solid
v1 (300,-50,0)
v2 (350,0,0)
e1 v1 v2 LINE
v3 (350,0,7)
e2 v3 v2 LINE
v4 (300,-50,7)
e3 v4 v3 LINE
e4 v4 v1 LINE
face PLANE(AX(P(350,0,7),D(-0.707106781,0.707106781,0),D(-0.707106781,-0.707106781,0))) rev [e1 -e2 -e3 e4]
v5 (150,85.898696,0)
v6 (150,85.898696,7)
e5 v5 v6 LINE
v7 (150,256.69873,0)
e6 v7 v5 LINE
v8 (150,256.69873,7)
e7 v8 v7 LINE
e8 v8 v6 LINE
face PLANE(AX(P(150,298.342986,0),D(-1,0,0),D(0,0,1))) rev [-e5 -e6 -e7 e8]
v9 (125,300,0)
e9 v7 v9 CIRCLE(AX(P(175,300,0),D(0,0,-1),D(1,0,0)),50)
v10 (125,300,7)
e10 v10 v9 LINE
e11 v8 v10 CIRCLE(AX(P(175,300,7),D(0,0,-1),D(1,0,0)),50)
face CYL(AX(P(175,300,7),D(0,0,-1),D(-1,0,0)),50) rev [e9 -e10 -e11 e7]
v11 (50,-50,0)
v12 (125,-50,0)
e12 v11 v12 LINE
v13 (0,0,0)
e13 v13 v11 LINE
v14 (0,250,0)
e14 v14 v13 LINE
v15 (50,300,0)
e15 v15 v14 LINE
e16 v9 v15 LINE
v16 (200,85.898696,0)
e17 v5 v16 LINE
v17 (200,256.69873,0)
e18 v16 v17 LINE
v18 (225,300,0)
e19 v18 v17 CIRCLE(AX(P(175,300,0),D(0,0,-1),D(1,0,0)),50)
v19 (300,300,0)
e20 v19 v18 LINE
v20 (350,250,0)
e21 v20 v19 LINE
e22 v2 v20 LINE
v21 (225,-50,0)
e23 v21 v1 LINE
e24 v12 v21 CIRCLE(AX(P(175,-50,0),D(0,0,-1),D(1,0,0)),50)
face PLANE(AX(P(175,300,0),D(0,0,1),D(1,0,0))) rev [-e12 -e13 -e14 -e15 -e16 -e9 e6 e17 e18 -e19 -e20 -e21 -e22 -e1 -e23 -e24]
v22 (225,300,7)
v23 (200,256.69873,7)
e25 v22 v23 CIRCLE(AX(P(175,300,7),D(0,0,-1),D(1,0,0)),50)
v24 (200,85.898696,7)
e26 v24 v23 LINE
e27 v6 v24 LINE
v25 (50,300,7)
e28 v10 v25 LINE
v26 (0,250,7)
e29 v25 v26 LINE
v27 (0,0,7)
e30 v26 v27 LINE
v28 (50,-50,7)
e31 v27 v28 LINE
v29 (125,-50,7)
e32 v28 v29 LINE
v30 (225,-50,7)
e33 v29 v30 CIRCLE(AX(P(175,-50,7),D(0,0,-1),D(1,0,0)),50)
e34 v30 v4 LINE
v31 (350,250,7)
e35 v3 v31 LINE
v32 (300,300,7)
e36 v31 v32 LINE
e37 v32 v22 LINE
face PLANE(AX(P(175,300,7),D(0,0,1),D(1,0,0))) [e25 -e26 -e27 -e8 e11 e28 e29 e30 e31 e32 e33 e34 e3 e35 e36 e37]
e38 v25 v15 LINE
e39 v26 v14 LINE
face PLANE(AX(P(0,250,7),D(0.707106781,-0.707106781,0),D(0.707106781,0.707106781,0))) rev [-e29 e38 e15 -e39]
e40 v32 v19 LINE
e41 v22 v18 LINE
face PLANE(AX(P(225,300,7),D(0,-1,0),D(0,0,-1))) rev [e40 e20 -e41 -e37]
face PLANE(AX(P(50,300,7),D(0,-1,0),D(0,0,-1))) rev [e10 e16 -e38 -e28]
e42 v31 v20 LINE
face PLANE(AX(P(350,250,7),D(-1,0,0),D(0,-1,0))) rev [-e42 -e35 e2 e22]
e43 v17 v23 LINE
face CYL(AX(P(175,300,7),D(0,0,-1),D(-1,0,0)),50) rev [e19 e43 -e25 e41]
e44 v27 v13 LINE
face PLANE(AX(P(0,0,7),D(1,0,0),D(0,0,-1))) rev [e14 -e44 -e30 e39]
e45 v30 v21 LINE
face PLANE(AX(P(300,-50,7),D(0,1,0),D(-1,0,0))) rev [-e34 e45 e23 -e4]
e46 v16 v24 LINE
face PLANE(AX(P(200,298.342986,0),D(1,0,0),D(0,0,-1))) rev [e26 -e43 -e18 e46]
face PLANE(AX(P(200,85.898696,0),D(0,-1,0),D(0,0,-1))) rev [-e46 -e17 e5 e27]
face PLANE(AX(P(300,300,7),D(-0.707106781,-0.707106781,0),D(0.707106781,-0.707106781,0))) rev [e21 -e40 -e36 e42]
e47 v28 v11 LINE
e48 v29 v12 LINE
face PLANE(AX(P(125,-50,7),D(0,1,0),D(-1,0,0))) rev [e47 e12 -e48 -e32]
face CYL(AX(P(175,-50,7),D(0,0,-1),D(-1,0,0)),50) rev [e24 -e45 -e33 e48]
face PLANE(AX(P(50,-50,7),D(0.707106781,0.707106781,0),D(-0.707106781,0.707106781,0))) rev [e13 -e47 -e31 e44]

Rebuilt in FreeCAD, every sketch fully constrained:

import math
import FreeCAD as App
import Part
import Sketcher
Q = App.Units.Quantity


def add_polygon(sketch, points):
    """Adds a closed chain of lines whose ends are joined by coincident constraints."""
    first, n = sketch.GeometryCount, len(points)
    for a, b in zip(points, points[1:] + points[:1]):
        sketch.addGeometry(Part.LineSegment(App.Vector(*a, 0), App.Vector(*b, 0)), False)
    for i in range(n):
        sketch.addConstraint(Sketcher.Constraint("Coincident", first + i, 2, first + (i + 1) % n, 1))

doc = App.newDocument("Part")
body = doc.addObject("PartDesign::Body", "Body")

sketch1 = body.newObject("Sketcher::SketchObject", "Sketch")
sketch1.AttachmentSupport = (doc.getObject("XY_Plane"), [""])
sketch1.MapMode = "FlatFace"
sketch1.addGeometry([
    Part.LineSegment(App.Vector(0, 250, 0), App.Vector(0, 0, 0)),
    Part.LineSegment(App.Vector(0, 0, 0), App.Vector(50, -50, 0)),
    Part.LineSegment(App.Vector(50, -50, 0), App.Vector(125, -50, 0)),
    Part.ArcOfCircle(Part.Circle(App.Vector(175, -50, 0), App.Vector(0, 0, 1), 50), math.radians(0), math.radians(180)),
    Part.LineSegment(App.Vector(225, -50, 0), App.Vector(300, -50, 0)),
    Part.LineSegment(App.Vector(300, -50, 0), App.Vector(350, 0, 0)),
    Part.LineSegment(App.Vector(350, 0, 0), App.Vector(350, 250, 0)),
    Part.LineSegment(App.Vector(350, 250, 0), App.Vector(300, 300, 0)),
    Part.LineSegment(App.Vector(300, 300, 0), App.Vector(225, 300, 0)),
    Part.ArcOfCircle(Part.Circle(App.Vector(175, 300, 0), App.Vector(0, 0, 1), 50), math.radians(180), math.radians(360)),
    Part.LineSegment(App.Vector(125, 300, 0), App.Vector(50, 300, 0)),
    Part.LineSegment(App.Vector(50, 300, 0), App.Vector(0, 250, 0)),
], False)
sketch1.addConstraint([
    Sketcher.Constraint("Coincident", 0, 2, 1, 1),
    Sketcher.Constraint("Coincident", 1, 2, 2, 1),
    Sketcher.Constraint("Coincident", 2, 2, 3, 2),
    Sketcher.Constraint("Coincident", 3, 1, 4, 1),
    Sketcher.Constraint("Coincident", 4, 2, 5, 1),
    Sketcher.Constraint("Coincident", 5, 2, 6, 1),
    Sketcher.Constraint("Coincident", 6, 2, 7, 1),
    Sketcher.Constraint("Coincident", 7, 2, 8, 1),
    Sketcher.Constraint("Coincident", 8, 2, 9, 2),
    Sketcher.Constraint("Coincident", 9, 1, 10, 1),
    Sketcher.Constraint("Coincident", 10, 2, 11, 1),
    Sketcher.Constraint("Coincident", 11, 2, 0, 1),
    Sketcher.Constraint("Vertical", 0),
    Sketcher.Constraint("Horizontal", 2),
    Sketcher.Constraint("Horizontal", 4),
    Sketcher.Constraint("Vertical", 6),
    Sketcher.Constraint("Horizontal", 8),
    Sketcher.Constraint("Horizontal", 10),
    Sketcher.Constraint("Coincident", 0, 2, -1, 1),
    Sketcher.Constraint("Equal", 3, 9),
    Sketcher.Constraint("PointOnObject", 5, 2, -1),
    Sketcher.Constraint("Perpendicular", 1, 5),
    Sketcher.Constraint("Perpendicular", 5, 7),
    Sketcher.Constraint("Perpendicular", 7, 11),
    Sketcher.Constraint("Horizontal", 3, 3, 1, 2),
    Sketcher.Constraint("Horizontal", 2, 2, 3, 1),
    Sketcher.Constraint("Horizontal", 9, 3, 7, 2),
    Sketcher.Constraint("Horizontal", 8, 2, 9, 1),
    Sketcher.Constraint("Horizontal", 6, 2, 11, 2),
    Sketcher.Constraint("Vertical", 3, 3, 9, 3),
    Sketcher.Constraint("Vertical", 4, 2, 7, 2),
    Sketcher.Constraint("Vertical", 1, 2, 10, 2),
    Sketcher.Constraint("Equal", 2, 4),
    Sketcher.Constraint("Radius", 3, Q("50 mm")),
    Sketcher.Constraint("DistanceX", 2, 1, 2, 2, Q("75 mm")),
    Sketcher.Constraint("DistanceY", 0, 2, 0, 1, Q("250 mm")),
    Sketcher.Constraint("DistanceX", -1, 1, 3, 3, Q("175 mm")),
])
pad1 = body.newObject("PartDesign::Pad", "Pad")
pad1.Profile = sketch1
pad1.Length = 7

sketch2 = body.newObject("Sketcher::SketchObject", "Sketch001")
sketch2.AttachmentSupport = (doc.getObject("XY_Plane"), [""])
sketch2.MapMode = "FlatFace"
sketch2.AttachmentOffset = App.Placement(App.Vector(0, 0, 7), App.Rotation())
add_polygon(sketch2, [(150, 298), (150, 86), (200, 86), (200, 298)])
sketch2.addConstraint([
    Sketcher.Constraint("Vertical", 0),
    Sketcher.Constraint("Horizontal", 1),
    Sketcher.Constraint("Vertical", 2),
    Sketcher.Constraint("Horizontal", 3),
    Sketcher.Constraint("DistanceX", 1, 1, 1, 2, Q("50 mm")),
    Sketcher.Constraint("DistanceX", -1, 1, 0, 2, Q("150 mm")),
    Sketcher.Constraint("DistanceY", 0, 2, 0, 1, Q("212.44429 mm")),
    Sketcher.Constraint("DistanceY", -1, 1, 0, 2, Q("85.898696 mm")),
])
pocket1 = body.newObject("PartDesign::Pocket", "Pocket")
pocket1.Profile = sketch2
pocket1.Type = "ThroughAll"

doc.recompute()
